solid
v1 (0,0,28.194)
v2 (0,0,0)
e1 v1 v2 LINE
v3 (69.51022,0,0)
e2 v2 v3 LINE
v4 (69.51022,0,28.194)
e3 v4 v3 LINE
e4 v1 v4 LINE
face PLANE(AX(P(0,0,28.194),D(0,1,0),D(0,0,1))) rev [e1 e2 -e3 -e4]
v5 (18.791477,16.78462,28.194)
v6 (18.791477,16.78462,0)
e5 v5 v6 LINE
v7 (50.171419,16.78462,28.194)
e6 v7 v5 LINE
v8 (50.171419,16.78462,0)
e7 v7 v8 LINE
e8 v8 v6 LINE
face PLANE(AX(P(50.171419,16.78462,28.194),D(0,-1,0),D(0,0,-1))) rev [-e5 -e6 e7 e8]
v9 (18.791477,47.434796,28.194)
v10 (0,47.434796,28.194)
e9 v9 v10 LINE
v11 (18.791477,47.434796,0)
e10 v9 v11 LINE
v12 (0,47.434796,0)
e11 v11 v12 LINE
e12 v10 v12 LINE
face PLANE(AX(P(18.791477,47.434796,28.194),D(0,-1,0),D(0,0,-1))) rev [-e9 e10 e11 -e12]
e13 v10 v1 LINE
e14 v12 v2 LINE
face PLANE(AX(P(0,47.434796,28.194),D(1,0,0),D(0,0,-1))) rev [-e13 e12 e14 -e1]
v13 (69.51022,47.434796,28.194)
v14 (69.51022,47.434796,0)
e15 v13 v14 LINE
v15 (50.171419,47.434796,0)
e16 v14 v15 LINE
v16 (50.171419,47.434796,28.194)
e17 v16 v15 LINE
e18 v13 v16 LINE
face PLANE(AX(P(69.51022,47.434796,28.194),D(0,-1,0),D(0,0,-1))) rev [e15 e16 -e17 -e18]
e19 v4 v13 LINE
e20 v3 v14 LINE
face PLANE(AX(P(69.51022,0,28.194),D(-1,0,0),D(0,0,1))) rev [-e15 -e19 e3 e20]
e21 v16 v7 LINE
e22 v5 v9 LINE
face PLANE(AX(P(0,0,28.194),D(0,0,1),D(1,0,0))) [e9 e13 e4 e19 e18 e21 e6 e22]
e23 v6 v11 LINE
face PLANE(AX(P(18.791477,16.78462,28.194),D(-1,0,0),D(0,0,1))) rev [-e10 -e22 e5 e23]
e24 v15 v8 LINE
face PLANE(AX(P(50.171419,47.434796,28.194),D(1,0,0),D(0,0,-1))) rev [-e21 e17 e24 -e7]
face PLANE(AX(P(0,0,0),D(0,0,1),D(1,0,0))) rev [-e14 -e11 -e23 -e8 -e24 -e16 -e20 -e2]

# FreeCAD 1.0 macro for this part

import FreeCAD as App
import Part
import Sketcher
Q = App.Units.Quantity

doc = App.newDocument("Part")
params = doc.addObject("Spreadsheet::Sheet", "Params")
for row, (alias, value) in enumerate([
    ("pad1_length", "1.11 in"),
], start=1):
    params.set(f"A{row}", alias)
    params.set(f"B{row}", "=" + value)
    params.setAlias(f"B{row}", alias)

body = doc.addObject("PartDesign::Body", "Body")

sketch1 = doc.addObject("Sketcher::SketchObject", "Sketch")
body.addObject(sketch1)
sketch1.AttachmentSupport = (doc.XY_Plane, [""])
sketch1.MapMode = "FlatFace"
sketch1.addGeometry([
    Part.LineSegment(App.Vector(0, 0, 0), App.Vector(70, 0, 0)),
    Part.LineSegment(App.Vector(70, 0, 0), App.Vector(70, 47, 0)),
    Part.LineSegment(App.Vector(70, 47, 0), App.Vector(50, 47, 0)),
    Part.LineSegment(App.Vector(50, 47, 0), App.Vector(50, 17, 0)),
    Part.LineSegment(App.Vector(50, 17, 0), App.Vector(19, 17, 0)),
    Part.LineSegment(App.Vector(19, 17, 0), App.Vector(19, 47, 0)),
    Part.LineSegment(App.Vector(19, 47, 0), App.Vector(0, 47, 0)),
    Part.LineSegment(App.Vector(0, 47, 0), App.Vector(0, 0, 0)),
], False)
sketch1.addConstraint([
    Sketcher.Constraint("Coincident", 0, 2, 1, 1),
    Sketcher.Constraint("Coincident", 1, 2, 2, 1),
    Sketcher.Constraint("Coincident", 2, 2, 3, 1),
    Sketcher.Constraint("Coincident", 3, 2, 4, 1),
    Sketcher.Constraint("Coincident", 4, 2, 5, 1),
    Sketcher.Constraint("Coincident", 5, 2, 6, 1),
    Sketcher.Constraint("Coincident", 6, 2, 7, 1),
    Sketcher.Constraint("Coincident", 7, 2, 0, 1),
    Sketcher.Constraint("Horizontal", 0),
    Sketcher.Constraint("Vertical", 1),
    Sketcher.Constraint("Horizontal", 2),
    Sketcher.Constraint("Vertical", 3),
    Sketcher.Constraint("Horizontal", 4),
    Sketcher.Constraint("Vertical", 5),
    Sketcher.Constraint("Horizontal", 6),
    Sketcher.Constraint("Vertical", 7),
    Sketcher.Constraint("Coincident", 7, 2, -1, 1),
    Sketcher.Constraint("Horizontal", 2, 2, 5, 2),
    Sketcher.Constraint("DistanceY", 3, 2, 3, 1, Q("1.2066998 in")),
    Sketcher.Constraint("DistanceX", 2, 2, 2, 1, Q("19.338801 mm")),
    Sketcher.Constraint("DistanceX", 0, 1, 0, 2, Q("69.51022 mm")),
    Sketcher.Constraint("DistanceX", 4, 2, 4, 1, Q("31.379942 mm")),
    Sketcher.Constraint("DistanceY", 1, 1, 1, 2, Q("47.434796 mm")),
])
pad1 = doc.addObject("PartDesign::Pad", "Pad")
body.addObject(pad1)
pad1.Profile = sketch1
pad1.setExpression("Length", "Params.pad1_length")

doc.recompute()
